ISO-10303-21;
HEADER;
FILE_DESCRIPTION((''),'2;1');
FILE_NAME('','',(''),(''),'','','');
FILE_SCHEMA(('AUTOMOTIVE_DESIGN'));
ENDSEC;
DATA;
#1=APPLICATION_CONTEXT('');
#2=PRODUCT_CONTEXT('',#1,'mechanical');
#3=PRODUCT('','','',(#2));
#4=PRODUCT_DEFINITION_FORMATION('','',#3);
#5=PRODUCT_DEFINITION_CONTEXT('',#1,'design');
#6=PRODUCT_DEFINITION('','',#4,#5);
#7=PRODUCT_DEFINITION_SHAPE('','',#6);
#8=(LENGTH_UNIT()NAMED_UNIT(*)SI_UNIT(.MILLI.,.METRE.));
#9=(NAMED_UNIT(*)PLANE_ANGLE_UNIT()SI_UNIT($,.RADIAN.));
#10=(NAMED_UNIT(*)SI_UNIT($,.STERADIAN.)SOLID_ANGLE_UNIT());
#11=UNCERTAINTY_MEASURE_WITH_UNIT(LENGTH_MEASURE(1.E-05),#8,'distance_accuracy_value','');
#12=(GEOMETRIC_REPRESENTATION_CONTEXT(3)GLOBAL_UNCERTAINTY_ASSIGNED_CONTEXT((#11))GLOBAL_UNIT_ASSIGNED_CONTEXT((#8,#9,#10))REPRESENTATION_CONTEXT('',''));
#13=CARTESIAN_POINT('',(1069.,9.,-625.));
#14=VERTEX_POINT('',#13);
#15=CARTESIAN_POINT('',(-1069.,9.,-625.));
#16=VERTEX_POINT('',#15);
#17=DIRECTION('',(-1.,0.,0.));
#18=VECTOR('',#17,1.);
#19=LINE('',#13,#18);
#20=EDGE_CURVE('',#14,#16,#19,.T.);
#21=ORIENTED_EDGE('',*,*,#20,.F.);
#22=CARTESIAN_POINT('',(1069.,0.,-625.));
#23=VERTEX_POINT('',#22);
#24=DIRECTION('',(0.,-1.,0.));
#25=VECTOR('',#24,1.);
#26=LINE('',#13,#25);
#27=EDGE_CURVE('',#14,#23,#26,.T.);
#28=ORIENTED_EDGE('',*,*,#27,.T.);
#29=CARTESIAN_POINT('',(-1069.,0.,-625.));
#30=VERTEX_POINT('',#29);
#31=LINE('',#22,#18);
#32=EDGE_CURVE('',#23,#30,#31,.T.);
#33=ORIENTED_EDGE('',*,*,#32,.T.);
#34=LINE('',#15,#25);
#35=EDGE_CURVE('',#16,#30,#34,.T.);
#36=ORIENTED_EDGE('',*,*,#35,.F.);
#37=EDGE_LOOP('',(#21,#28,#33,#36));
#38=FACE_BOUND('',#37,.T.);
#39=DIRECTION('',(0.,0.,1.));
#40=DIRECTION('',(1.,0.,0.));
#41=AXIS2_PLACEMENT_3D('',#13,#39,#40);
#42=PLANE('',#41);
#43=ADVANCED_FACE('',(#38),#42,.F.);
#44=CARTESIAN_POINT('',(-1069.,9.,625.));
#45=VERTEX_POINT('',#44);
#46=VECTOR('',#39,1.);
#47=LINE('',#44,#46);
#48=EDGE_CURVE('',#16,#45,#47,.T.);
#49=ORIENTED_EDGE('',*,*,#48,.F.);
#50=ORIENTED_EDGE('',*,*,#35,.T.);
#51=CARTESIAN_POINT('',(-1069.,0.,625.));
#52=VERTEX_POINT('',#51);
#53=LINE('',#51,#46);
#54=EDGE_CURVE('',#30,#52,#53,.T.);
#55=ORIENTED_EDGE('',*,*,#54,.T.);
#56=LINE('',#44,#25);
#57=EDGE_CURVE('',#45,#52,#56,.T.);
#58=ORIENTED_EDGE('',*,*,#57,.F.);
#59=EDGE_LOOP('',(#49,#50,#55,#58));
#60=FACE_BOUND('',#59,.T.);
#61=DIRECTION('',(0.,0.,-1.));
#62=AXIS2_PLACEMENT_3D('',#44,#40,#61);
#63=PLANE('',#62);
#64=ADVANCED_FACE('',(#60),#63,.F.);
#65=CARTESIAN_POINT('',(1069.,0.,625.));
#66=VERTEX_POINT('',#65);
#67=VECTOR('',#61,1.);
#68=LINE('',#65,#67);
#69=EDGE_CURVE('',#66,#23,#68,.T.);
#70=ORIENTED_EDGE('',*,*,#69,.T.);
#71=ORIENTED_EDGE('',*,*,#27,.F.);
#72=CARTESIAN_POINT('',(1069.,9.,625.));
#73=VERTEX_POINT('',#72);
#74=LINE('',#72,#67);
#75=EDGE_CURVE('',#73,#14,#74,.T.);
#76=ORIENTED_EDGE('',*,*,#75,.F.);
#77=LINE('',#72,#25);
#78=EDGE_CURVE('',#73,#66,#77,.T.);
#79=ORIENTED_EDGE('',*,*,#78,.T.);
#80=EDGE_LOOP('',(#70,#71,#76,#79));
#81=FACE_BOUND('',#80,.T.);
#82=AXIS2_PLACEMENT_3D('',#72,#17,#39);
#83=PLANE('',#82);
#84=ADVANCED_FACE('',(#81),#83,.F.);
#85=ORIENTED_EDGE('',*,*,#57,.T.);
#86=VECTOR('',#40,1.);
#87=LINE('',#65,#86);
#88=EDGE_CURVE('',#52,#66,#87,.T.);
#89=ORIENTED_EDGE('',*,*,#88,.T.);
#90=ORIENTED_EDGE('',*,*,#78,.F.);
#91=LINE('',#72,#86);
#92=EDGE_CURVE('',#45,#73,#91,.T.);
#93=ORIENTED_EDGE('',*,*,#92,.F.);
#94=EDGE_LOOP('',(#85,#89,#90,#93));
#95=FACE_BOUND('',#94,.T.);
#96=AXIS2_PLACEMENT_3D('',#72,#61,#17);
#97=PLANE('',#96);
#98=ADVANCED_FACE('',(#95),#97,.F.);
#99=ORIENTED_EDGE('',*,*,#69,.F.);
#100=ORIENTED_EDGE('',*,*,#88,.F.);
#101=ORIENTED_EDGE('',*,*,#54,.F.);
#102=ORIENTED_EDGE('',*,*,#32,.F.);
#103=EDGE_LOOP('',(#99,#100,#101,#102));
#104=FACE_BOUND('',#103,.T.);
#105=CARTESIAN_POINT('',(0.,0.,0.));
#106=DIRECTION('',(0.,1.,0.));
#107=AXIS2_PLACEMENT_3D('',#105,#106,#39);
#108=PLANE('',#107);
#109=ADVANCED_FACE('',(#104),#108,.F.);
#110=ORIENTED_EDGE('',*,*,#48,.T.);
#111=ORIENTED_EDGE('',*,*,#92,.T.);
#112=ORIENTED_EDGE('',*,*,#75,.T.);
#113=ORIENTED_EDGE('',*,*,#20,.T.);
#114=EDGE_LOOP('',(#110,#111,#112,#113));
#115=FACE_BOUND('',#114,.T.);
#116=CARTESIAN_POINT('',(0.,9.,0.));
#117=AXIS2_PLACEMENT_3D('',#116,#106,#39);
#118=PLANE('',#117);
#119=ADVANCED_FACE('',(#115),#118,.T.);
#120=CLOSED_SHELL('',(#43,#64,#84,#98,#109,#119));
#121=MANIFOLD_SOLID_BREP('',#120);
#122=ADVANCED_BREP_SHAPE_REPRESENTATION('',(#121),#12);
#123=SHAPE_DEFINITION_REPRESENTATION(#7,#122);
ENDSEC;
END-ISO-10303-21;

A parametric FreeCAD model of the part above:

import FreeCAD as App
import Part
import Sketcher
from FreeCAD import Vector


def add_polygon(sketch, points):
    """Adds a closed chain of lines whose ends are joined by coincident constraints."""
    first, n = sketch.GeometryCount, len(points)
    for a, b in zip(points, points[1:] + points[:1]):
        sketch.addGeometry(Part.LineSegment(App.Vector(*a, 0), App.Vector(*b, 0)), False)
    for i in range(n):
        sketch.addConstraint(Sketcher.Constraint("Coincident", first + i, 2, first + (i + 1) % n, 1))

doc = App.newDocument("Part")
body = doc.addObject("PartDesign::Body", "Body")

sketch1 = body.newObject("Sketcher::SketchObject", "Sketch")
sketch1.AttachmentSupport = (doc.getObject("XZ_Plane"), [""])
sketch1.MapMode = "FlatFace"
add_polygon(sketch1, [(-1069, -625), (-1069, 625), (1069, 625), (1069, -625)])
sketch1.addConstraint([
    Sketcher.Constraint("Vertical", 0),
    Sketcher.Constraint("Horizontal", 1),
    Sketcher.Constraint("Vertical", 2),
    Sketcher.Constraint("Horizontal", 3),
    Sketcher.Constraint("Symmetric", 0, 2, 2, 2, -1, 1),
    Sketcher.Constraint("DistanceX", 1, 1, 1, 2, 2138.0),
    Sketcher.Constraint("DistanceY", 0, 1, 0, 2, 1250.0),
])
pad1 = body.newObject("PartDesign::Pad", "Pad")
pad1.Profile = sketch1
pad1.Length = 9
pad1.Reversed = True

doc.recompute()
